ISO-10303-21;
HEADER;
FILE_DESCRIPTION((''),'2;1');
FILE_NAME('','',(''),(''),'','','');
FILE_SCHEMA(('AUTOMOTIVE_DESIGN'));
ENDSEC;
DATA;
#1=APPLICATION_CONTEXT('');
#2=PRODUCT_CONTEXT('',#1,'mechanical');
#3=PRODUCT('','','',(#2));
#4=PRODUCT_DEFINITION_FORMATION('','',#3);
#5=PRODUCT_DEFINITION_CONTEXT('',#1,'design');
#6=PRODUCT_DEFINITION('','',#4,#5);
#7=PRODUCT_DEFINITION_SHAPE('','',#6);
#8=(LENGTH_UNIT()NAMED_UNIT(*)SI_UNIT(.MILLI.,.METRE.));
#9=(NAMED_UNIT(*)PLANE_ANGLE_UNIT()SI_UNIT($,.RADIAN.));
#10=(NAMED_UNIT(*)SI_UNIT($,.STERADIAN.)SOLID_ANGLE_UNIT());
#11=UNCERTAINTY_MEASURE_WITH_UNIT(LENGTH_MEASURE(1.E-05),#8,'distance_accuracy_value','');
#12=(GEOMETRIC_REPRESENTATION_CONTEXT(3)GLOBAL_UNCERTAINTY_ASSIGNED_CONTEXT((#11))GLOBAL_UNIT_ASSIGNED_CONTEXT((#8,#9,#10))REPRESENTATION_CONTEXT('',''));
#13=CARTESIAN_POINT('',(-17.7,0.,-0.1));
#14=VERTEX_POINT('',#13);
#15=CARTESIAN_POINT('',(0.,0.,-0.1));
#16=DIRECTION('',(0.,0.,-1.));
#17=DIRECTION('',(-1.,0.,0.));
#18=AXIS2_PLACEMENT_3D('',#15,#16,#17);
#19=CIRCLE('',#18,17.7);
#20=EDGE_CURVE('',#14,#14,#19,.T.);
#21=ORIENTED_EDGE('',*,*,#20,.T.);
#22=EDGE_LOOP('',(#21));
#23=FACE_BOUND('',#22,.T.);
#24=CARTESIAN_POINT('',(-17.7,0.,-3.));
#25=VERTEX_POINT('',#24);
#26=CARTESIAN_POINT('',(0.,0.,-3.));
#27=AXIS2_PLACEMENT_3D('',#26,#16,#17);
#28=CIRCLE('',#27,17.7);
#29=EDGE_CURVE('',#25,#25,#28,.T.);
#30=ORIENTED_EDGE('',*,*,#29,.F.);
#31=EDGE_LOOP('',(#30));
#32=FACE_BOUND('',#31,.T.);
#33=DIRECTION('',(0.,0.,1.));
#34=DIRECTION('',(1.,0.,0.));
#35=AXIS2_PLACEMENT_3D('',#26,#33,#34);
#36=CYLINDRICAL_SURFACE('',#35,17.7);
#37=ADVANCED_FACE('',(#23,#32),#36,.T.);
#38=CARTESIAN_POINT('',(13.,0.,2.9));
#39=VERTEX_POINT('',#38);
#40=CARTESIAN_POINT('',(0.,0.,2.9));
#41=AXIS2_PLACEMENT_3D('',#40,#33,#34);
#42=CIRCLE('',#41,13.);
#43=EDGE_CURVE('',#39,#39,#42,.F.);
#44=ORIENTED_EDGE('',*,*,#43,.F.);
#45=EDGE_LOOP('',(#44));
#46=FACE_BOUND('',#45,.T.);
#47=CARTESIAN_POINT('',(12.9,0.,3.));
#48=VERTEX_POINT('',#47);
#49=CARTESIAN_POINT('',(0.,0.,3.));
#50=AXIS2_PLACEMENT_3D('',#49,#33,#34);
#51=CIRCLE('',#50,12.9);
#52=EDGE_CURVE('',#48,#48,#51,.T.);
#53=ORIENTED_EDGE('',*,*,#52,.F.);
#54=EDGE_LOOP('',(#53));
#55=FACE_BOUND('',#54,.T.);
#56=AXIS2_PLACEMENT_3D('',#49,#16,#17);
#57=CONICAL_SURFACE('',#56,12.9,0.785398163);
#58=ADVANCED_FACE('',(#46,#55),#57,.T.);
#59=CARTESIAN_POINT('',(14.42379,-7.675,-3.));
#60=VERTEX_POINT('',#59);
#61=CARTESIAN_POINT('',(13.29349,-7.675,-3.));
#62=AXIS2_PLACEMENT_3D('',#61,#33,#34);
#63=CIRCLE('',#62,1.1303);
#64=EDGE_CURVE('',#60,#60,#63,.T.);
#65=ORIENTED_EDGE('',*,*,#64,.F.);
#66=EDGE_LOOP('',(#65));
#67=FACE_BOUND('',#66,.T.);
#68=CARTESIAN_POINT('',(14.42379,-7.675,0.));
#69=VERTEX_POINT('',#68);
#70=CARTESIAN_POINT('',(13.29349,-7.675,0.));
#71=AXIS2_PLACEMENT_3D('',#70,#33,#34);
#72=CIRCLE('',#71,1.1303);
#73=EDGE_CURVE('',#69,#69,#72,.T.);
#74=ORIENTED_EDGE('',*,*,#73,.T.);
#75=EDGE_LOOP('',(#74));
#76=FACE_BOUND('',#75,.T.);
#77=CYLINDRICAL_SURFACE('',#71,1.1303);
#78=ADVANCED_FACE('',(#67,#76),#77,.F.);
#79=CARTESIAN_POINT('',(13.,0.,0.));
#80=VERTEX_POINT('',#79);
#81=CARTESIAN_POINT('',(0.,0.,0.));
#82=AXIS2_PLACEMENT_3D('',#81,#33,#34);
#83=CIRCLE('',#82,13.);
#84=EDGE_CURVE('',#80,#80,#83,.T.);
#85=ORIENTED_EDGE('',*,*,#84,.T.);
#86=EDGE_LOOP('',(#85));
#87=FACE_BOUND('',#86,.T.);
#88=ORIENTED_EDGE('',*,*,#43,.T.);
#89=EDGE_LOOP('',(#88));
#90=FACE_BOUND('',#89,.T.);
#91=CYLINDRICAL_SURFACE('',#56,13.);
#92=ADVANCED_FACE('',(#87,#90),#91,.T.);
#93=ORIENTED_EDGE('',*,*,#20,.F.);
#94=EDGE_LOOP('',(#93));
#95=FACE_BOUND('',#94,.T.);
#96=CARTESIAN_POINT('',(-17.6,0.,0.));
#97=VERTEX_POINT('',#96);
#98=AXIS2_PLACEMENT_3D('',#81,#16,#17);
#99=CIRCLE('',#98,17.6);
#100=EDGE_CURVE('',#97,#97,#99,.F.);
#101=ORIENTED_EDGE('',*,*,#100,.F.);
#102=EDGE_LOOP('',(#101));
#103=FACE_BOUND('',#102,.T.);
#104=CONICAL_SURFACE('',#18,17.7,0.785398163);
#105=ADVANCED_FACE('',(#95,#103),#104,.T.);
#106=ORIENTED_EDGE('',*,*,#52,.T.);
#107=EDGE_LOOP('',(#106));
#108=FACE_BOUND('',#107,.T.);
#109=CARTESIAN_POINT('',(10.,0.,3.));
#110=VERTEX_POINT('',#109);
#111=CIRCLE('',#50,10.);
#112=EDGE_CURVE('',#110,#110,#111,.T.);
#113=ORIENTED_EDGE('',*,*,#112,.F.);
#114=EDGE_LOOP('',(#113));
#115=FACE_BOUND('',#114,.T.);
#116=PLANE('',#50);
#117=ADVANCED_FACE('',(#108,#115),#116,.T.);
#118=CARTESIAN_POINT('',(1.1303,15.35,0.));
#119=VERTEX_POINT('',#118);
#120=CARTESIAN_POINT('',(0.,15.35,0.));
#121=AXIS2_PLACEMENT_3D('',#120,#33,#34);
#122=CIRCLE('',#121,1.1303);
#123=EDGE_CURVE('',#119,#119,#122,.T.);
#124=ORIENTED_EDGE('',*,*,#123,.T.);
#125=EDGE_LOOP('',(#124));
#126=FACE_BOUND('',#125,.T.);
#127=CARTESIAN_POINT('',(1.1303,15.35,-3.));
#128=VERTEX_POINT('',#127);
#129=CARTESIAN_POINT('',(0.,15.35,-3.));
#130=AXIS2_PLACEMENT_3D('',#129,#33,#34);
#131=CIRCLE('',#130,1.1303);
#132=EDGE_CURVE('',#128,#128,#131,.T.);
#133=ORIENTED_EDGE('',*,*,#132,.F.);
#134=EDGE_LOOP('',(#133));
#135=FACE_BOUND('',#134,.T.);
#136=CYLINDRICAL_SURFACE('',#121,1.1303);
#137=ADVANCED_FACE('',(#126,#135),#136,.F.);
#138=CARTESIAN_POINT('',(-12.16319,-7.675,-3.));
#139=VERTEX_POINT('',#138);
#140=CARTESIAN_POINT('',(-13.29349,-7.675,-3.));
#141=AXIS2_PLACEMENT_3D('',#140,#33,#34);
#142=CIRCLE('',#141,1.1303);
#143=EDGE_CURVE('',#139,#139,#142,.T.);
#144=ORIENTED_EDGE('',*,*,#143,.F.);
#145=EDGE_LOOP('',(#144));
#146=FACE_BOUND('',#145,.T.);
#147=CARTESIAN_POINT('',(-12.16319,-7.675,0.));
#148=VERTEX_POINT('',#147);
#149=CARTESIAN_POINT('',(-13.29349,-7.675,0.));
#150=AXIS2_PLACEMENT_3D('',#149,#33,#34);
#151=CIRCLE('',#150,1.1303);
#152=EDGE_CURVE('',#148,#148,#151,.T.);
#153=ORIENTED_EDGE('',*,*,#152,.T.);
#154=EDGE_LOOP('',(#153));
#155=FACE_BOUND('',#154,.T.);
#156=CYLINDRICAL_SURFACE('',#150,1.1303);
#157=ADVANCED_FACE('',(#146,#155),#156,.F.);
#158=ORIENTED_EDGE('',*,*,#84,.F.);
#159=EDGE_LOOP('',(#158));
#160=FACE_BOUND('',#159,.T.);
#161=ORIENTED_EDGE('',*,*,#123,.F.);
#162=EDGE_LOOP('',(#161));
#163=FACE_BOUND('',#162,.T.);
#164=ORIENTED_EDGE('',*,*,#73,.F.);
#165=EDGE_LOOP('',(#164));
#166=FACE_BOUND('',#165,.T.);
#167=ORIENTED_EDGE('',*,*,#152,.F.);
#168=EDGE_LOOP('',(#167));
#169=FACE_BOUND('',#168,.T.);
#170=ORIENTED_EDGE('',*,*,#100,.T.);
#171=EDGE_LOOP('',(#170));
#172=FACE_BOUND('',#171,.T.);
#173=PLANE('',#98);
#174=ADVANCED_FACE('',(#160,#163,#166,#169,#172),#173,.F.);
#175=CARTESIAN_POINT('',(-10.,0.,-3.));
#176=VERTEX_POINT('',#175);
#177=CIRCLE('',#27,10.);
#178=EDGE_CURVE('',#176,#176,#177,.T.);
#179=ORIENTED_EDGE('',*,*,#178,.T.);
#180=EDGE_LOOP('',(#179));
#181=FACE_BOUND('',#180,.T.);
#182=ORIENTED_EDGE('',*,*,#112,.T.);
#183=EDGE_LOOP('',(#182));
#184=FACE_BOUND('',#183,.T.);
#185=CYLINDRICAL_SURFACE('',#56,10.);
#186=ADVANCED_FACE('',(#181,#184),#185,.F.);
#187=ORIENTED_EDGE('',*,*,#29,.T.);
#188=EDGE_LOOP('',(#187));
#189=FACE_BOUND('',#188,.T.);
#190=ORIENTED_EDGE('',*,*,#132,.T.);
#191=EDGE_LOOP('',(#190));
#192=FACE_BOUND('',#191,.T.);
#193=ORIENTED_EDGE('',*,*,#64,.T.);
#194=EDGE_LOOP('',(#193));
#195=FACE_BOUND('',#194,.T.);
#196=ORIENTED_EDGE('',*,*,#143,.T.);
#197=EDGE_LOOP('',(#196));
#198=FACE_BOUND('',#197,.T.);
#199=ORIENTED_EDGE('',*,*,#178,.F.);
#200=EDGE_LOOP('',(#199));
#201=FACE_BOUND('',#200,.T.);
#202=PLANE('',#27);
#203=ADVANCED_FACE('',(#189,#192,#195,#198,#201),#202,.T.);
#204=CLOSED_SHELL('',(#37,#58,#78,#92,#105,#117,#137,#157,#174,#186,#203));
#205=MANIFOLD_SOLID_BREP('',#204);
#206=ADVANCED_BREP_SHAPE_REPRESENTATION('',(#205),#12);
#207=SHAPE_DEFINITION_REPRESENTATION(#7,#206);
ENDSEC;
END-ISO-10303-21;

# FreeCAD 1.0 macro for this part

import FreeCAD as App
import Part
import Sketcher

V = App.Vector
Q = App.Units.Quantity


def edges_at(feature, points):
    """Names of the edges that pass closest to the given points."""
    edges = feature.Shape.Edges
    near = lambda p: min(range(len(edges)), key=lambda i: edges[i].distToShape(Part.Vertex(*p))[0])
    return sorted({f"Edge{near(p) + 1}" for p in points})

doc = App.newDocument("Part")
params = doc.addObject("Spreadsheet::Sheet", "Params")
for row, (alias, value) in enumerate([
    ("sketch1_diameter", "26 mm"),
    ("sketch1_diameter2", "20 mm"),
    ("pad1_length", "3 mm"),
    ("sketch2_diameter", "20 mm"),
    ("sketch2_diameter2", "35.4 mm"),
    ("pad2_length", "3 mm"),
    ("hole_diameter", "2.2606 mm"),
    ("chamfer_size", "0.1 mm"),
    ("chamfer2_size", "0.1 mm"),
], start=1):
    params.set(f"A{row}", alias)
    params.set(f"B{row}", "=" + value)
    params.setAlias(f"B{row}", alias)

body = doc.addObject("PartDesign::Body", "Body")

# Sketch on XY plane
sketch1 = body.newObject("Sketcher::SketchObject", "Sketch")
sketch1.AttachmentSupport = (doc.getObject("XY_Plane"), [""])
sketch1.MapMode = "FlatFace"
sketch1.addGeometry([
    Part.Circle(V(0, 0, 0), V(0, 0, 1), 13),
    Part.Circle(V(0, 0, 0), V(0, 0, 1), 10),
], False)
sketch1.addConstraint([
    Sketcher.Constraint("Coincident", 0, 3, -1, 1),
    Sketcher.Constraint("Coincident", 1, 3, -1, 1),
    Sketcher.Constraint("Diameter", 0, Q("26 mm")),
    Sketcher.Constraint("Diameter", 1, Q("20 mm")),
])
sketch1.setExpression("Constraints[2]", "Params.sketch1_diameter")
sketch1.setExpression("Constraints[3]", "Params.sketch1_diameter2")
pad1 = body.newObject("PartDesign::Pad", "Pad")
pad1.Profile = sketch1
pad1.setExpression("Length", "Params.pad1_length")

# Sketch on XY plane
sketch2 = body.newObject("Sketcher::SketchObject", "Sketch001")
sketch2.AttachmentSupport = (doc.getObject("XY_Plane"), [""])
sketch2.MapMode = "FlatFace"
sketch2.AttachmentOffset = App.Placement(V(0, 0, -3), App.Rotation())
sketch2.addGeometry([
    Part.Circle(V(0, 0, 0), V(0, 0, 1), 18),
    Part.Circle(V(0, 0, 0), V(0, 0, 1), 10),
], False)
sketch2.addConstraint([
    Sketcher.Constraint("Coincident", 0, 3, -1, 1),
    Sketcher.Constraint("Coincident", 1, 3, -1, 1),
    Sketcher.Constraint("Diameter", 1, Q("20 mm")),
    Sketcher.Constraint("Diameter", 0, Q("35.4 mm")),
])
sketch2.setExpression("Constraints[2]", "Params.sketch2_diameter")
sketch2.setExpression("Constraints[3]", "Params.sketch2_diameter2")
pad2 = body.newObject("PartDesign::Pad", "Pad001")
pad2.Profile = sketch2
pad2.setExpression("Length", "Params.pad2_length")

# Sketch on XY plane
sketch3 = body.newObject("Sketcher::SketchObject", "Sketch002")
sketch3.AttachmentSupport = (doc.getObject("XY_Plane"), [""])
sketch3.MapMode = "FlatFace"
sketch3.addGeometry(Part.Circle(V(0, 15.3, 0), V(0, 0, 1), 1.1), False)
sketch3.addConstraint([
    Sketcher.Constraint("PointOnObject", 0, 3, -2),
    Sketcher.Constraint("Diameter", 0, Q("2.2606 mm")),
    Sketcher.Constraint("DistanceY", -1, 1, 0, 3, Q("15.35 mm")),
])
doc.recompute()
hole = body.newObject("PartDesign::Hole", "Hole")
hole.Profile = sketch3
hole.ThreadType = "None"
hole.setExpression("Diameter", "Params.hole_diameter")
hole.DepthType = "ThroughAll"
doc.recompute()

polarpattern = body.newObject("PartDesign::PolarPattern", "PolarPattern")
polarpattern.Originals = [hole]
polarpattern.Axis = (doc.getObject("Z_Axis"), [""])
polarpattern.Angle = 360
polarpattern.Occurrences = 3
body.Tip = polarpattern
doc.recompute()

chamfer = body.newObject("PartDesign::Chamfer", "Chamfer")
chamfer.Base = (polarpattern, edges_at(polarpattern, [(17.7, 0, 0)]))
chamfer.setExpression("Size", "Params.chamfer_size")
doc.recompute()

chamfer2 = body.newObject("PartDesign::Chamfer", "Chamfer001")
chamfer2.Base = (chamfer, edges_at(chamfer, [(-13, 0, 3)]))
chamfer2.setExpression("Size", "Params.chamfer2_size")

doc.recompute()
